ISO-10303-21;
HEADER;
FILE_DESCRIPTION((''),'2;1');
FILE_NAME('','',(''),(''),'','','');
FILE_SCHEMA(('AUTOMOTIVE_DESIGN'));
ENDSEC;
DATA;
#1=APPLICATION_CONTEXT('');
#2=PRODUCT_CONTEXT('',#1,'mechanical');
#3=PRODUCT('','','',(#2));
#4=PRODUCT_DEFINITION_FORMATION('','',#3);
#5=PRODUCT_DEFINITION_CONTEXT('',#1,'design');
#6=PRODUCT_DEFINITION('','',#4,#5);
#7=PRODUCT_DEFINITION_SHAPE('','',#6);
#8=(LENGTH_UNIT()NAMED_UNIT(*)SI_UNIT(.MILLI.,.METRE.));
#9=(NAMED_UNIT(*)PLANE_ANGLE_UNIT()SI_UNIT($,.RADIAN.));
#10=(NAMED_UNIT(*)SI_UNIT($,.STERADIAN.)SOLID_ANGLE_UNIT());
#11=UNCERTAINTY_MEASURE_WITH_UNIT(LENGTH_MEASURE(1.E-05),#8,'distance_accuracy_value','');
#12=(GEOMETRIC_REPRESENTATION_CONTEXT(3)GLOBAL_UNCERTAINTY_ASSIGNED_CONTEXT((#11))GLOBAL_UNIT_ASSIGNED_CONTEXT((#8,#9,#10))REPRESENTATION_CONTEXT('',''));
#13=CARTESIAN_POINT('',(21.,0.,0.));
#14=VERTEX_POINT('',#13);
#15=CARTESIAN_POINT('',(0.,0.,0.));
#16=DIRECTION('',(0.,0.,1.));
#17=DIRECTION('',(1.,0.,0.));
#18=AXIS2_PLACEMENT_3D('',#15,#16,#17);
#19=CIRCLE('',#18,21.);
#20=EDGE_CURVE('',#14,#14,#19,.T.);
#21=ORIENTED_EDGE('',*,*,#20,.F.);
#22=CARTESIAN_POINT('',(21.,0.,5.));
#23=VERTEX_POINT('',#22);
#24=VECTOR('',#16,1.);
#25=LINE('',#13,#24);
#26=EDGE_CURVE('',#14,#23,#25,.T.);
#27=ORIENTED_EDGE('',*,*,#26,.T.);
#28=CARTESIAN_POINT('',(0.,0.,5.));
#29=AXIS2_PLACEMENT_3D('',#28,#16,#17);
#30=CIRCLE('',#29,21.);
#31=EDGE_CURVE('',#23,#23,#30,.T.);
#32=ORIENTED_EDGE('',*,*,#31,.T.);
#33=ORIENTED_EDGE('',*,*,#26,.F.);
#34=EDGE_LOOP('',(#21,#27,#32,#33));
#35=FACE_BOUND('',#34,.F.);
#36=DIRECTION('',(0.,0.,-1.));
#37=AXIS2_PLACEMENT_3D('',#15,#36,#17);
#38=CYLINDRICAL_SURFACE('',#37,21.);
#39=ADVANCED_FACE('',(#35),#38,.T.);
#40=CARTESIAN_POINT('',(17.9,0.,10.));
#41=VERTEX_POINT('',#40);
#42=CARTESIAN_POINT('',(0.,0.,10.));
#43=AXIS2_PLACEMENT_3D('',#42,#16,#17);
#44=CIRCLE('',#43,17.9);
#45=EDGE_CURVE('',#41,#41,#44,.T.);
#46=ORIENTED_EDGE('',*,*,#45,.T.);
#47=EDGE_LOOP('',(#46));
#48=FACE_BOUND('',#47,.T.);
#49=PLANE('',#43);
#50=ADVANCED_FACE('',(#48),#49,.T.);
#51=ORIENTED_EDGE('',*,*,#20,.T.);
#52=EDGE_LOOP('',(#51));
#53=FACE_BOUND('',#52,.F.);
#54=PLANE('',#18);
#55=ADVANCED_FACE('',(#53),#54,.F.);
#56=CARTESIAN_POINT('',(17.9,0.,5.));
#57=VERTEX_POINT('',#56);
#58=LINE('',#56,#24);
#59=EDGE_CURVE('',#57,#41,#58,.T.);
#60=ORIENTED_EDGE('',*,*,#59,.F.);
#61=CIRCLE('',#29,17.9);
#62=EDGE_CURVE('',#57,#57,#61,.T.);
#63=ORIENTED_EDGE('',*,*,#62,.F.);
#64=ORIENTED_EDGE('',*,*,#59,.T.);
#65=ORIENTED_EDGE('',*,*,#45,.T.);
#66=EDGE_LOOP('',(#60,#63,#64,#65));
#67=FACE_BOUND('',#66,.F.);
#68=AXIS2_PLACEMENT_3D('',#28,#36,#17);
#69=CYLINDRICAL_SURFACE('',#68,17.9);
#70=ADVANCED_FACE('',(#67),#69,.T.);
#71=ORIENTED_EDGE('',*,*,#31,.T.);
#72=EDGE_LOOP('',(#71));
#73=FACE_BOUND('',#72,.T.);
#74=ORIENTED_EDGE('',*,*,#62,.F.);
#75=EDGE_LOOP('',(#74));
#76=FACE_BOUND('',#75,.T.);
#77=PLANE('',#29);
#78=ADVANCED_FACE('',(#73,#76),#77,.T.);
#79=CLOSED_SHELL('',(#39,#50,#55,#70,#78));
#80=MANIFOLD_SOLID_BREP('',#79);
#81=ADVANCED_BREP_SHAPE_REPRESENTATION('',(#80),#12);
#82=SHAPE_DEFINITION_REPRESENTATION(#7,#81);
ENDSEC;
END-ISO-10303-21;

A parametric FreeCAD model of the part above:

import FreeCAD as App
import Part
import Sketcher

doc = App.newDocument("Part")
params = doc.addObject("Spreadsheet::Sheet", "Params")
for row, (alias, value) in enumerate([
    ("sketch1_diameter", "42 mm"),
    ("pad1_length", "5 mm"),
    ("sketch2_diameter", "35.8 mm"),
    ("pad2_length", "5 mm"),
    ("sketch3_diameter", "20 mm"),
    ("pad3_length", "25 mm"),
    ("sketch4_diameter", "20 mm"),
    ("sketch6_diameter", "40 mm"),
    ("sketch7_diameter", "20 mm"),
], start=1):
    params.set(f"A{row}", alias)
    params.set(f"B{row}", "=" + value)
    params.setAlias(f"B{row}", alias)

body = doc.addObject("PartDesign::Body", "Body")

# Sketch on XY plane
sketch1 = body.newObject("Sketcher::SketchObject", "Sketch")
sketch1.AttachmentSupport = (doc.getObject("XY_Plane"), [""])
sketch1.MapMode = "FlatFace"
sketch1.addGeometry(Part.Circle(App.Vector(0, 0, 0), App.Vector(0, 0, 1), 21), False)
sketch1.addConstraint([
    Sketcher.Constraint("Coincident", 0, 3, -1, 1),
    Sketcher.Constraint("Diameter", 0, 42.0),
])
sketch1.setExpression("Constraints[1]", "Params.sketch1_diameter")
pad1 = body.newObject("PartDesign::Pad", "Pad")
pad1.Profile = sketch1
pad1.setExpression("Length", "Params.pad1_length")

# Sketch on XY plane
sketch2 = body.newObject("Sketcher::SketchObject", "Sketch001")
sketch2.AttachmentSupport = (doc.getObject("XY_Plane"), [""])
sketch2.MapMode = "FlatFace"
sketch2.AttachmentOffset = App.Placement(App.Vector(0, 0, 5), App.Rotation())
sketch2.addGeometry(Part.Circle(App.Vector(0, 0, 0), App.Vector(0, 0, 1), 18), False)
sketch2.addConstraint([
    Sketcher.Constraint("Coincident", 0, 3, -1, 1),
    Sketcher.Constraint("Diameter", 0, 35.8),
])
sketch2.setExpression("Constraints[1]", "Params.sketch2_diameter")
pad2 = body.newObject("PartDesign::Pad", "Pad001")
pad2.Profile = sketch2
pad2.setExpression("Length", "Params.pad2_length")
body2 = doc.addObject("PartDesign::Body", "Body001")

# Sketch on XY plane
sketch3 = body2.newObject("Sketcher::SketchObject", "Sketch002")
sketch3.AttachmentSupport = (doc.getObject("XY_Plane001"), [""])
sketch3.MapMode = "FlatFace"
sketch3.AttachmentOffset = App.Placement(App.Vector(0, 0, -25), App.Rotation())
sketch3.addGeometry(Part.Circle(App.Vector(0, 0, 0), App.Vector(0, 0, 1), 10), False)
sketch3.addConstraint([
    Sketcher.Constraint("Coincident", 0, 3, -1, 1),
    Sketcher.Constraint("Diameter", 0, 20.0),
])
sketch3.setExpression("Constraints[1]", "Params.sketch3_diameter")
pad3 = body2.newObject("PartDesign::Pad", "Pad002")
pad3.Profile = sketch3
pad3.setExpression("Length", "Params.pad3_length")
pad3.Reversed = True

# Sketch on XY plane
sketch4 = body2.newObject("Sketcher::SketchObject", "Sketch003")
sketch4.AttachmentSupport = (doc.getObject("XY_Plane001"), [""])
sketch4.MapMode = "FlatFace"
sketch4.AttachmentOffset = App.Placement(App.Vector(0, 0, -50), App.Rotation())
sketch4.addGeometry(Part.Circle(App.Vector(0, 0, 0), App.Vector(0, 0, 1), 10), False)
sketch4.addConstraint([
    Sketcher.Constraint("Coincident", 0, 3, -1, 1),
    Sketcher.Constraint("Diameter", 0, 20.0),
])
sketch4.setExpression("Constraints[1]", "Params.sketch4_diameter")

# Sketch on XZ plane
sketch5 = body2.newObject("Sketcher::SketchObject", "Sketch004")
sketch5.AttachmentSupport = (doc.getObject("XZ_Plane001"), [""])
sketch5.MapMode = "FlatFace"
sketch5.addGeometry([
    Part.LineSegment(App.Vector(0, -50, 0), App.Vector(0, -58.921538, 0)),
    Part.BSplineCurve([App.Vector(0, -58.921538, 0), App.Vector(0.244972, -61.816434, 0), App.Vector(0.771115, -68.033998, 0), App.Vector(-4.636324, -79.432835, 0), App.Vector(-19.658925, -90.988254, 0), App.Vector(-29.037885, -98.202571, 0)], [4, 1, 1, 4], [0, 0.246596894, 0.529632909, 1], False, 3, [1, 1, 1, 1, 1, 1], False),
], False)
sketch5.addConstraint([
    Sketcher.Constraint("Block", 1),
    Sketcher.Constraint("Coincident", 0, 2, 1, 1),
    Sketcher.Constraint("Vertical", 0),
    Sketcher.Constraint("DistanceY", 0, 1, -1, 1, 50.0),
])
doc.recompute()

additivepipe = body2.newObject("PartDesign::AdditivePipe", "AdditivePipe")
additivepipe.Profile = sketch4
additivepipe.Spine = (sketch5, ["Edge1", "Edge2"])
additivepipe.Transition = "Right corner"
body3 = doc.addObject("PartDesign::Body", "Body002")

# Sketch on XY plane
sketch6 = body3.newObject("Sketcher::SketchObject", "Sketch005")
sketch6.AttachmentSupport = (doc.getObject("XY_Plane002"), [""])
sketch6.MapMode = "FlatFace"
sketch6.addGeometry(Part.Circle(App.Vector(0, 0, 0), App.Vector(0, 0, 1), 20), False)
sketch6.addConstraint([
    Sketcher.Constraint("Coincident", 0, 3, -1, 1),
    Sketcher.Constraint("Diameter", 0, 40.0),
])
sketch6.setExpression("Constraints[1]", "Params.sketch6_diameter")

# Sketch on XY plane
sketch7 = body3.newObject("Sketcher::SketchObject", "Sketch006")
sketch7.AttachmentSupport = (doc.getObject("XY_Plane002"), [""])
sketch7.MapMode = "FlatFace"
sketch7.AttachmentOffset = App.Placement(App.Vector(0, 0, -25), App.Rotation())
sketch7.addGeometry(Part.Circle(App.Vector(0, 0, 0), App.Vector(0, 0, 1), 10), False)
sketch7.addConstraint([
    Sketcher.Constraint("Coincident", 0, 3, -1, 1),
    Sketcher.Constraint("Diameter", 0, 20.0),
])
sketch7.setExpression("Constraints[1]", "Params.sketch7_diameter")

additiveloft = body3.newObject("PartDesign::AdditiveLoft", "AdditiveLoft")
additiveloft.Profile = sketch6
additiveloft.Sections = [sketch7]
body2.Visibility = False
body3.Visibility = False

doc.recompute()
